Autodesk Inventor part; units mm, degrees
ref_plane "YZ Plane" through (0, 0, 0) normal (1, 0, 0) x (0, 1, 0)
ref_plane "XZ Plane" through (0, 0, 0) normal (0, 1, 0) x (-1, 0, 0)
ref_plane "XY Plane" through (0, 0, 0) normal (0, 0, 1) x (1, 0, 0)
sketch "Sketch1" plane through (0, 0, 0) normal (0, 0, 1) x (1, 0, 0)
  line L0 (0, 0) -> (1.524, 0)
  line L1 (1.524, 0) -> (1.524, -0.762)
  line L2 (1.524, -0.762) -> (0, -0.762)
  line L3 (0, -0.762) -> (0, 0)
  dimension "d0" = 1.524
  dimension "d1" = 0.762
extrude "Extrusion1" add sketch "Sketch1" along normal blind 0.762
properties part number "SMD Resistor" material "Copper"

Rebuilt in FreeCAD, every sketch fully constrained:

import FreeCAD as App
import Part
import Sketcher
from FreeCAD import Vector
Q = App.Units.Quantity

doc = App.newDocument("Part")
params = doc.addObject("Spreadsheet::Sheet", "Params")
for row, (alias, value) in enumerate([
    ("sketch1_width", "0.06 in"),
    ("sketch1_height", "0.03 in"),
    ("pad1_length", "0.03 in"),
], start=1):
    params.set(f"A{row}", alias)
    params.set(f"B{row}", "=" + value)
    params.setAlias(f"B{row}", alias)

body = doc.addObject("PartDesign::Body", "Body")

sketch1 = body.newObject("Sketcher::SketchObject", "Sketch")
sketch1.AttachmentSupport = (doc.getObject("XY_Plane"), [""])
sketch1.MapMode = "FlatFace"
sketch1.addGeometry([
    Part.LineSegment(Vector(1.5, 0, 0), Vector(0, 0, 0)),
    Part.LineSegment(Vector(0, 0, 0), Vector(0, -0.8, 0)),
    Part.LineSegment(Vector(0, -0.8, 0), Vector(1.5, -0.8, 0)),
    Part.LineSegment(Vector(1.5, -0.8, 0), Vector(1.5, 0, 0)),
], False)
sketch1.addConstraint([
    Sketcher.Constraint("Coincident", 0, 2, 1, 1),
    Sketcher.Constraint("Coincident", 1, 2, 2, 1),
    Sketcher.Constraint("Coincident", 2, 2, 3, 1),
    Sketcher.Constraint("Coincident", 3, 2, 0, 1),
    Sketcher.Constraint("Horizontal", 0),
    Sketcher.Constraint("Vertical", 1),
    Sketcher.Constraint("Horizontal", 2),
    Sketcher.Constraint("Vertical", 3),
    Sketcher.Constraint("Coincident", 0, 2, -1, 1),
    Sketcher.Constraint("DistanceX", 0, 2, 0, 1, Q("0.06 in")),
    Sketcher.Constraint("DistanceY", 1, 2, 1, 1, Q("0.03 in")),
])
sketch1.setExpression("Constraints[9]", "Params.sketch1_width")
sketch1.setExpression("Constraints[10]", "Params.sketch1_height")
pad1 = body.newObject("PartDesign::Pad", "Pad")
pad1.Profile = sketch1
pad1.setExpression("Length", "Params.pad1_length")

doc.recompute()
